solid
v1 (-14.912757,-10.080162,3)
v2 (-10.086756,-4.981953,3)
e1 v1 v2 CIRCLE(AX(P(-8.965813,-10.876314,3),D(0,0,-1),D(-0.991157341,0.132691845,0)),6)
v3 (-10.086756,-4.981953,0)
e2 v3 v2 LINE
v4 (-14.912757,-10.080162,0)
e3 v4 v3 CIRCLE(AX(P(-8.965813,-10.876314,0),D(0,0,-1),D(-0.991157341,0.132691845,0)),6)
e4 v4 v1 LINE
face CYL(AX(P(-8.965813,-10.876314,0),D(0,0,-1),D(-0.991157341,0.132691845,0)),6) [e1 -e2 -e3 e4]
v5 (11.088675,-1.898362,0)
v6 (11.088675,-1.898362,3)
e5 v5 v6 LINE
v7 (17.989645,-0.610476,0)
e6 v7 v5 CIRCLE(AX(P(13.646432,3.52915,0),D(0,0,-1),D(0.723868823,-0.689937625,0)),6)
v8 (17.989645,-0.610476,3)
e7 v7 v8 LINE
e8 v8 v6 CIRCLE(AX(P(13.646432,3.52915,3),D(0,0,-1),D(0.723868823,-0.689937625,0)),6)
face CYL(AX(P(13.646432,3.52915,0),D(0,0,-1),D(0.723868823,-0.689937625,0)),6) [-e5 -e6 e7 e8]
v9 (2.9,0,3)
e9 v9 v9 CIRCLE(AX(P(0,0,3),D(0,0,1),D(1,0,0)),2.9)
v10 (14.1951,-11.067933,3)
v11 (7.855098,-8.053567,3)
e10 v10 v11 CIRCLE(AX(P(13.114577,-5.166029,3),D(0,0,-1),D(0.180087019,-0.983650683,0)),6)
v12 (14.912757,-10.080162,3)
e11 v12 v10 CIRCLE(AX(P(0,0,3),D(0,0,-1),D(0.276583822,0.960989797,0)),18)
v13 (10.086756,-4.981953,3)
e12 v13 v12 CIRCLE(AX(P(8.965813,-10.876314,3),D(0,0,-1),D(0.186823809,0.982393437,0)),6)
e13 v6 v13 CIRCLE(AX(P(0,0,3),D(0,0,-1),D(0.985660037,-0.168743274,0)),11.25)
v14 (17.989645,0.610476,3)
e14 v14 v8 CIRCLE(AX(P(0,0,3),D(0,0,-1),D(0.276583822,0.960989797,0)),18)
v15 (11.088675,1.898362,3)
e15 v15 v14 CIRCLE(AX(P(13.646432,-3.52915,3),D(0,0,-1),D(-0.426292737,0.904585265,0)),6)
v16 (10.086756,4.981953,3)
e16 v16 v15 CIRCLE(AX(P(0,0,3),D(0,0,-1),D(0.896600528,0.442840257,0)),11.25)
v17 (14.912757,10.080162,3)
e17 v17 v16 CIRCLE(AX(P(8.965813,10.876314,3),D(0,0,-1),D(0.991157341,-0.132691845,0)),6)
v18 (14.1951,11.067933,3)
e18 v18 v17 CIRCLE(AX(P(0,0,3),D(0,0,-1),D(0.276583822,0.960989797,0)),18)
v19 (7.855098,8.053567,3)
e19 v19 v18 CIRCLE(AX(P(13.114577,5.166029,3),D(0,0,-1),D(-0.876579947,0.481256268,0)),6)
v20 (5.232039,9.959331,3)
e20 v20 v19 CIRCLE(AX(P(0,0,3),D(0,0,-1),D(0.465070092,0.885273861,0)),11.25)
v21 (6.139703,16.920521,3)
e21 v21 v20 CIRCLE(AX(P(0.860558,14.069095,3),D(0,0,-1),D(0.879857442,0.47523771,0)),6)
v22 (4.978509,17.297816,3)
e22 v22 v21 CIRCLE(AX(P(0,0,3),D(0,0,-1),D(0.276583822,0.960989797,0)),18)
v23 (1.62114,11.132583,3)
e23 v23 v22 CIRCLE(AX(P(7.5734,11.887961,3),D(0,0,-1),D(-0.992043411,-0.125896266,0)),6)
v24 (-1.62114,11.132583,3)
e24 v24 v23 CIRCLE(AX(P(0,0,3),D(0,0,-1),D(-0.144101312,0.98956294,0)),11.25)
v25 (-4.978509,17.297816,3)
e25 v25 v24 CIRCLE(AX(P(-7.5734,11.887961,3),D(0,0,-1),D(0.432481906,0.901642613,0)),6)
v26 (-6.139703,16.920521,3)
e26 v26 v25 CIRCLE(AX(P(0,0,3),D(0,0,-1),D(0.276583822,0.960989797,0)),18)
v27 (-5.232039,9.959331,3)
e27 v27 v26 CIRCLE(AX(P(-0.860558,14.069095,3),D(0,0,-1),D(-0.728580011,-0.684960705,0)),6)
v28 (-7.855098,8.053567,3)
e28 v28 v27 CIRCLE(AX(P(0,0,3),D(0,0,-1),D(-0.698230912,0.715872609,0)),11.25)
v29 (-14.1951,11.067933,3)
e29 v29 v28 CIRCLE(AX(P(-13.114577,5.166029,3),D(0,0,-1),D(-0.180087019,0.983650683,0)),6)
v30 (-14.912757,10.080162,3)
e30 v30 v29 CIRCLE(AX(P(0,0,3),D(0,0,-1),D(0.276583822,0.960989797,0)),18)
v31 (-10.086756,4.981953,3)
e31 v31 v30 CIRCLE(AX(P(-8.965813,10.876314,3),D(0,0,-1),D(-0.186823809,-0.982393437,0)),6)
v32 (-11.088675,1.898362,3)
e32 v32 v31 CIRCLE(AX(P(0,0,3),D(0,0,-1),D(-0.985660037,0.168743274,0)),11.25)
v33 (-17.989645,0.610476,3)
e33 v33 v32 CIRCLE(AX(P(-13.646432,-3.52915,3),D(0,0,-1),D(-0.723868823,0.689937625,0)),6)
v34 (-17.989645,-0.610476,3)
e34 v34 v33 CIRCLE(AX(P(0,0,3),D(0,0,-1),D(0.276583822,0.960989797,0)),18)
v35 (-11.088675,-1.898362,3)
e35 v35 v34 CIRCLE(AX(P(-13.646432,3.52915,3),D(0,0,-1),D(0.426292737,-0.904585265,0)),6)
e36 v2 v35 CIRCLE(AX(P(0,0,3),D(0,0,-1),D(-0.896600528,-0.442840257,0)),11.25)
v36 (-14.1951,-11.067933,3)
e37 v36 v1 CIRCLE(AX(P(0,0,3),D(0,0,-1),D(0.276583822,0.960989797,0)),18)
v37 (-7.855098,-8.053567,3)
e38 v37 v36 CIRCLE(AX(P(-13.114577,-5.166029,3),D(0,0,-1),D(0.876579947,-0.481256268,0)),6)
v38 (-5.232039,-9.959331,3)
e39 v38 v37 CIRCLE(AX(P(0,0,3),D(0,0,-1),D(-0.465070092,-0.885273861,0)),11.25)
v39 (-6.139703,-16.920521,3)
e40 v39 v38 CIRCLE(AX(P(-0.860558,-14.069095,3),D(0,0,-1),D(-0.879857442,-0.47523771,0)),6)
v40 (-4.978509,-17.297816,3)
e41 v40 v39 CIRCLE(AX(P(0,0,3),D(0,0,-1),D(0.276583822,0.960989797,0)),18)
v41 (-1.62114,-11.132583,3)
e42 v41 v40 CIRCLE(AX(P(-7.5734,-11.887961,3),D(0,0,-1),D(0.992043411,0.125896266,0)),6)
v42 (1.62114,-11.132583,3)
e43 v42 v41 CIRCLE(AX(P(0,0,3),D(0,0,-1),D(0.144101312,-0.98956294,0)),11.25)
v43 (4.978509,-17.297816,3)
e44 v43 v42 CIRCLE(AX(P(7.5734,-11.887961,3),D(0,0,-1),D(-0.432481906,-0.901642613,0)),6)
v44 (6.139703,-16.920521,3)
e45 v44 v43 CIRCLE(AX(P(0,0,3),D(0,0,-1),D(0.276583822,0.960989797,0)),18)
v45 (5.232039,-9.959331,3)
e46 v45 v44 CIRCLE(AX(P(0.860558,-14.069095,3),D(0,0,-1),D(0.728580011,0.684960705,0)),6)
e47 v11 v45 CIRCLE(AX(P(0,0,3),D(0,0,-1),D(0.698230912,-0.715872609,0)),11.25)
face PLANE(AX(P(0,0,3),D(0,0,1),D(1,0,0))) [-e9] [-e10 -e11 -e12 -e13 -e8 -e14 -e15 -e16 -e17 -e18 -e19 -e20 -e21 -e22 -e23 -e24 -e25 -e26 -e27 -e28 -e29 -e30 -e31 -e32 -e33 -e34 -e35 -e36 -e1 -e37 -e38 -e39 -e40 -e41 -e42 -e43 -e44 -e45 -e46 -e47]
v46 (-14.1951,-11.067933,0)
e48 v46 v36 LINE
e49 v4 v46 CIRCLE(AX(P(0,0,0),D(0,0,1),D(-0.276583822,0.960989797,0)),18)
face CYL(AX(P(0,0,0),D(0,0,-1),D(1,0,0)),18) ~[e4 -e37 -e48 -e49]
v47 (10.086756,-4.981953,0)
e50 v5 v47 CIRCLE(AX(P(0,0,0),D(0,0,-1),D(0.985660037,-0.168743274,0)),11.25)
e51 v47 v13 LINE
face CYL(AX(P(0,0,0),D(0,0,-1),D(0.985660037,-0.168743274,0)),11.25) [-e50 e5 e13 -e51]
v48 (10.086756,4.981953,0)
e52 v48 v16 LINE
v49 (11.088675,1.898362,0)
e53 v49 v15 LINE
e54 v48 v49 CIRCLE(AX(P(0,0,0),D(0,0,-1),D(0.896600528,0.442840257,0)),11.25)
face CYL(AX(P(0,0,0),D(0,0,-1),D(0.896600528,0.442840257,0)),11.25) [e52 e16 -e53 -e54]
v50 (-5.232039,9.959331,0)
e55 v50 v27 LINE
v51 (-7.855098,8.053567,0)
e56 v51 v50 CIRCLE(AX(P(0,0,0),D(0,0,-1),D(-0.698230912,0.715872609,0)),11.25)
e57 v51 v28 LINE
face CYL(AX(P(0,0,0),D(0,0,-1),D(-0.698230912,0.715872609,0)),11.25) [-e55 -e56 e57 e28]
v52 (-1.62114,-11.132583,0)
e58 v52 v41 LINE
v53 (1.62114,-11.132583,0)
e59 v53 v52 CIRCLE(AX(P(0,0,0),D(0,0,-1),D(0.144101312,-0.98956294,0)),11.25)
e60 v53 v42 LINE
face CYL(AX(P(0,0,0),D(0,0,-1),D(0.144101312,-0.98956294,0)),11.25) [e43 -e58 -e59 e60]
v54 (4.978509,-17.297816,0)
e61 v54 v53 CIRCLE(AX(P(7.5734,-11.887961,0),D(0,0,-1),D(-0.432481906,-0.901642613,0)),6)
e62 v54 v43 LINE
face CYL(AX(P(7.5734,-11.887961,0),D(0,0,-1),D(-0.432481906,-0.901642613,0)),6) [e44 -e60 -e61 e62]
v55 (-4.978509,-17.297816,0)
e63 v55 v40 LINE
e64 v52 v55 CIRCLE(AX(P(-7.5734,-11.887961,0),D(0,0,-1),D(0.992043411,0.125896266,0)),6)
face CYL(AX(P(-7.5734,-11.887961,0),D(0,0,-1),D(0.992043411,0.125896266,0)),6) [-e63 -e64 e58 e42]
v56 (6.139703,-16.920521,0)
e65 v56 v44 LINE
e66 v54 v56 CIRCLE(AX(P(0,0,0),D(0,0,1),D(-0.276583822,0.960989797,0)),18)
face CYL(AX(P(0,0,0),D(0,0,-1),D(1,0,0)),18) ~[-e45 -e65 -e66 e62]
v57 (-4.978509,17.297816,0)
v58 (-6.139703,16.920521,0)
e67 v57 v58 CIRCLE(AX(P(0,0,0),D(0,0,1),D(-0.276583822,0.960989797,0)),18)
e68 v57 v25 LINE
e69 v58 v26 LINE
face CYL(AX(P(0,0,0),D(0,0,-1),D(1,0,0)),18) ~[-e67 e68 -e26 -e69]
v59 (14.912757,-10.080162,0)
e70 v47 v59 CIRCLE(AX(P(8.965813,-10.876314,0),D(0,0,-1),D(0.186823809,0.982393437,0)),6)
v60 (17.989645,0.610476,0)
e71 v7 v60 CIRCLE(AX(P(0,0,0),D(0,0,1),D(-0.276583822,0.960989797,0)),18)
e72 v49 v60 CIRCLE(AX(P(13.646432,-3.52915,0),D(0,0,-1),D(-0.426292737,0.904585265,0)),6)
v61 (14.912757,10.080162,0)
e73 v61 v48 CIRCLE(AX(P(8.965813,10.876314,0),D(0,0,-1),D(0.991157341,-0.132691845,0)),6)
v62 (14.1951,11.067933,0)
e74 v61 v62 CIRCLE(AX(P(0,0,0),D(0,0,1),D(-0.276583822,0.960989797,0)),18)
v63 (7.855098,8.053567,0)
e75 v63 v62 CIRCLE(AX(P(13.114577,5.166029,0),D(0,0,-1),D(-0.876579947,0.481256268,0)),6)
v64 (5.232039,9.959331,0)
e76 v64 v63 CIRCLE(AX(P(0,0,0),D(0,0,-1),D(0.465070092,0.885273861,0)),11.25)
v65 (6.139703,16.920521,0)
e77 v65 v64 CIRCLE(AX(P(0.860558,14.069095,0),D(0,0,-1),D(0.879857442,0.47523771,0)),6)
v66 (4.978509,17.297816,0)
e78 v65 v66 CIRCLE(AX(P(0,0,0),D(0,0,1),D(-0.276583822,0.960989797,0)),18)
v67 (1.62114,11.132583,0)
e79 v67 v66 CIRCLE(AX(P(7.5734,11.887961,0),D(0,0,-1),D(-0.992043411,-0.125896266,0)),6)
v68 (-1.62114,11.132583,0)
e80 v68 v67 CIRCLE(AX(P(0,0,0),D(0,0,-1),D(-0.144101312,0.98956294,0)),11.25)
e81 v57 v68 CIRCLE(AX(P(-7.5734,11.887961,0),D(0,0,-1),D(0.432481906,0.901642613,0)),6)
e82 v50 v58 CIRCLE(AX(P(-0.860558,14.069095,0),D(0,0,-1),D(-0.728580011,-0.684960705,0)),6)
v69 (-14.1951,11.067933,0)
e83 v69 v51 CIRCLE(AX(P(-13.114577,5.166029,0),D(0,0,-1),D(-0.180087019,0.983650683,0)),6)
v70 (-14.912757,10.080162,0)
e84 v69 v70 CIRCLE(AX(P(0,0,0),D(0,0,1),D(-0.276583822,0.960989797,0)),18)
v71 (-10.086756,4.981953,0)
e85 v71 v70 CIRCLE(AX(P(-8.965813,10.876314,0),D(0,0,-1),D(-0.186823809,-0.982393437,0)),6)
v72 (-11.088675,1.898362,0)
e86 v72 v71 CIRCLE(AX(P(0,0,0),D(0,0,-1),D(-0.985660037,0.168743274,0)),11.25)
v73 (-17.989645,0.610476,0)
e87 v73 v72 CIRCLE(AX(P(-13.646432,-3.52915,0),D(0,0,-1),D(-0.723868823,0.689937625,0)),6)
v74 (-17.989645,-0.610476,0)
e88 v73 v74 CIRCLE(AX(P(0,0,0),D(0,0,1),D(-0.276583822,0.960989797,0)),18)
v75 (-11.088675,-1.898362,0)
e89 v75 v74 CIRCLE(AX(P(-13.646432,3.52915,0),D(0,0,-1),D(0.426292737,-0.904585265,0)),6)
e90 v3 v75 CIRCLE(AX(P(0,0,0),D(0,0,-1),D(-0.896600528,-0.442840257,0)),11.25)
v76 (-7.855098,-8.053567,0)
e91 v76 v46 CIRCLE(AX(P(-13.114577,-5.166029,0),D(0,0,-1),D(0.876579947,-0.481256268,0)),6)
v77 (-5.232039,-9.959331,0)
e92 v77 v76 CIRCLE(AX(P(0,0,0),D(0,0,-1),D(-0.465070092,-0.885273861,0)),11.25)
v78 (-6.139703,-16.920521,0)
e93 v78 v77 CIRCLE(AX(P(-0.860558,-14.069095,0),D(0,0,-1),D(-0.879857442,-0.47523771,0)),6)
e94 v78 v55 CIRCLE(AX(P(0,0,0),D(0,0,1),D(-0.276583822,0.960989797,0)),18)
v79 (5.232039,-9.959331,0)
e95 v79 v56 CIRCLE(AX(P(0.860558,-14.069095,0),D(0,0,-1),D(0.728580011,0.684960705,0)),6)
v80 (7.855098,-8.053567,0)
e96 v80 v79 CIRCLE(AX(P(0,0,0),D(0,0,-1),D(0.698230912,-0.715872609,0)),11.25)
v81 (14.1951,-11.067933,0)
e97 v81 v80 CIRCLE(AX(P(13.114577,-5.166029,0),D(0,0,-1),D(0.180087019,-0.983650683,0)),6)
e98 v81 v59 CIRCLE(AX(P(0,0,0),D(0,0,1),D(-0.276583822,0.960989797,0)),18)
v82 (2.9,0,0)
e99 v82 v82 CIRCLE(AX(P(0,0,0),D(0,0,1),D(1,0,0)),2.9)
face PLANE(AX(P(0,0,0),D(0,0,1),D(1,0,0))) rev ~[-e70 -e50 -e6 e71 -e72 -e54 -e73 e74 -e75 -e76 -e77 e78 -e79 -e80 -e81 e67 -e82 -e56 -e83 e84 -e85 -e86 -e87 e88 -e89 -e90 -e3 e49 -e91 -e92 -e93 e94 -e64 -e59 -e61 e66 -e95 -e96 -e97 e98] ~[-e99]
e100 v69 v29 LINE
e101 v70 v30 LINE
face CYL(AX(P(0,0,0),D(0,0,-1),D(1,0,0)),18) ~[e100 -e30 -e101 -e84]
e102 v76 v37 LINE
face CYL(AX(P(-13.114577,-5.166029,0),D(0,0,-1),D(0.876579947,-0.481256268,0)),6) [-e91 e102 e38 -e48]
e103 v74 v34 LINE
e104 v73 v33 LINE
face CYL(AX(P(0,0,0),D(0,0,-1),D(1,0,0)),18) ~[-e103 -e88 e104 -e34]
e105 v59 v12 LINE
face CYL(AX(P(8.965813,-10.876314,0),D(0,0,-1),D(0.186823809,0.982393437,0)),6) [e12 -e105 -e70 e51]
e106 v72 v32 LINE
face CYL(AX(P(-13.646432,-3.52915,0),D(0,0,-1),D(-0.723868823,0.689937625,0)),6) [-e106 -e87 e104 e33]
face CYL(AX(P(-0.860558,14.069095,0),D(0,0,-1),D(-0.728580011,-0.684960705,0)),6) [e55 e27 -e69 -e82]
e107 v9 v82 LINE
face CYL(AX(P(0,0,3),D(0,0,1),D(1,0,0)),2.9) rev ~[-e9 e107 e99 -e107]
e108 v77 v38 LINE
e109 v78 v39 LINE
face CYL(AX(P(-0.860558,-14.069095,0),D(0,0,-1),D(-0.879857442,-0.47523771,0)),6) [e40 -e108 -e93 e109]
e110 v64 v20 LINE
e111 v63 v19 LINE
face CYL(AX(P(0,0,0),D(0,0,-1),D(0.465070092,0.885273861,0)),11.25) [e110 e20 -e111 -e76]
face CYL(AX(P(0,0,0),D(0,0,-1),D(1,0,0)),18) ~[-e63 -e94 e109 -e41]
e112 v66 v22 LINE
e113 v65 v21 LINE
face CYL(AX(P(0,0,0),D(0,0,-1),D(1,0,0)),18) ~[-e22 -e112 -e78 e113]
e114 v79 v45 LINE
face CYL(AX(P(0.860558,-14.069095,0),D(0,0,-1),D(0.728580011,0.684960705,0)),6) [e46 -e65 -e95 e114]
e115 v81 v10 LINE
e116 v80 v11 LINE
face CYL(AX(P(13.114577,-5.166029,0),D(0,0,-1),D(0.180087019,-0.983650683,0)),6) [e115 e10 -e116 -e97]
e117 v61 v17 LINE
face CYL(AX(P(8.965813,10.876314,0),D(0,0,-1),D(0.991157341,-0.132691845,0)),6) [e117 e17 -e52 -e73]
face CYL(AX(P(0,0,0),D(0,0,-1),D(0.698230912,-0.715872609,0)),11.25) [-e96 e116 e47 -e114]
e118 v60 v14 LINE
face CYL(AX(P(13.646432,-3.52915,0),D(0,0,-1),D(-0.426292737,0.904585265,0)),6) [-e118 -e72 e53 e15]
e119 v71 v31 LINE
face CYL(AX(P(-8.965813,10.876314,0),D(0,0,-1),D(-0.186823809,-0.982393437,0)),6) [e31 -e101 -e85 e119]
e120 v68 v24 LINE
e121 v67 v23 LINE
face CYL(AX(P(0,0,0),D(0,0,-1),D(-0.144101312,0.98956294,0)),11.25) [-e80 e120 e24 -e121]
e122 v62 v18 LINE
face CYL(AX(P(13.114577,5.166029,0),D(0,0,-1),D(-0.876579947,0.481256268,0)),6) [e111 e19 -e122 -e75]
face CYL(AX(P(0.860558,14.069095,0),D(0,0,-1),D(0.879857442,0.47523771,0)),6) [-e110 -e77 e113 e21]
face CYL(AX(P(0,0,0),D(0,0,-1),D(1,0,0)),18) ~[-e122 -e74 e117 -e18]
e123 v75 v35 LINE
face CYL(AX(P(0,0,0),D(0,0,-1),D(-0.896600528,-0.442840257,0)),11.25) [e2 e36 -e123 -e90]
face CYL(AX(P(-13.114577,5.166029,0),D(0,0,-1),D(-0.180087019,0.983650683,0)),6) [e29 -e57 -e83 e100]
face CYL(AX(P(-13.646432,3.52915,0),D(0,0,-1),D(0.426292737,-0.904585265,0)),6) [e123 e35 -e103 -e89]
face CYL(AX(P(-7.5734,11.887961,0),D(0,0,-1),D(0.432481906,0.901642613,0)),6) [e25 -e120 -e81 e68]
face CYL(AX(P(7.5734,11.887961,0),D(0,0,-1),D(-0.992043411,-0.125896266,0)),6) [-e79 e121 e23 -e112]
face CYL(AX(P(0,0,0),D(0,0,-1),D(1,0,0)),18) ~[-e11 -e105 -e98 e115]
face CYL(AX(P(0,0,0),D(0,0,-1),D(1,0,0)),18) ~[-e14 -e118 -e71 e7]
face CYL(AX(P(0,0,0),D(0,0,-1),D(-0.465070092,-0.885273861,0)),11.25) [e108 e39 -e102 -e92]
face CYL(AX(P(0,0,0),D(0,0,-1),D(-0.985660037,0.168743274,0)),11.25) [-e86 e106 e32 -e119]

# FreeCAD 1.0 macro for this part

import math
import FreeCAD as App
import Part
import Sketcher

V = App.Vector
Q = App.Units.Quantity

doc = App.newDocument("Part")
body = doc.addObject("PartDesign::Body", "Body")

sketch1 = doc.addObject("Sketcher::SketchObject", "Sketch")
body.addObject(sketch1)
sketch1.AttachmentSupport = (doc.XY_Plane, [""])
sketch1.MapMode = "FlatFace"
sketch1.addGeometry(Part.Circle(V(0, 0, 0), V(0, 0, 1), 18), False)
sketch1.addConstraint([
    Sketcher.Constraint("Coincident", 0, 3, -1, 1),
    Sketcher.Constraint("Diameter", 0, Q("36 mm")),
])
pad1 = doc.addObject("PartDesign::Pad", "Pad")
body.addObject(pad1)
pad1.Profile = sketch1
pad1.Length = 3

sketch2 = doc.addObject("Sketcher::SketchObject", "Sketch001")
body.addObject(sketch2)
sketch2.AttachmentSupport = (doc.XY_Plane, [""])
sketch2.MapMode = "FlatFace"
sketch2.addGeometry([
    Part.ArcOfCircle(Part.Circle(V(-7.6, 11.9, 0), V(0, 0, 1), 6), math.radians(-7), math.radians(64)),
    Part.ArcOfCircle(Part.Circle(V(0, 0, 0), V(0, 0, 1), 11.3), math.radians(81.71), math.radians(98.29)),
    Part.ArcOfCircle(Part.Circle(V(7.6, 11.9, 0), V(0, 0, 1), 6), math.radians(116), math.radians(187)),
    Part.ArcOfCircle(Part.Circle(V(0, 0, 0), V(0, 0, 1), 18), math.radians(74), math.radians(106)),
], False)
sketch2.addConstraint([
    Sketcher.Constraint("Coincident", 0, 1, 1, 2),
    Sketcher.Constraint("Coincident", 1, 1, 2, 2),
    Sketcher.Constraint("Coincident", 2, 1, 3, 1),
    Sketcher.Constraint("Coincident", 3, 2, 0, 2),
    Sketcher.Constraint("Coincident", 1, 3, -1, 1),
    Sketcher.Constraint("Coincident", 3, 3, -1, 1),
    Sketcher.Constraint("Equal", 0, 2),
    Sketcher.Constraint("Symmetric", 0, 3, 2, 3, -2),
    Sketcher.Constraint("Radius", 0, Q("6 mm")),
    Sketcher.Constraint("Radius", 3, Q("18 mm")),
    Sketcher.Constraint("Radius", 1, Q("11.25 mm")),
    Sketcher.Constraint("DistanceX", 0, 3, -1, 1, Q("7.5734 mm")),
    Sketcher.Constraint("DistanceY", -1, 1, 0, 3, Q("11.887961 mm")),
])
pocket1 = doc.addObject("PartDesign::Pocket", "Pocket")
body.addObject(pocket1)
pocket1.Profile = sketch2
pocket1.Length = 3
pocket1.Reversed = True
doc.recompute()

polarpattern = doc.addObject("PartDesign::PolarPattern", "PolarPattern")
body.addObject(polarpattern)
polarpattern.Originals = [pocket1]
polarpattern.Axis = (doc.Z_Axis, [""])
polarpattern.Angle = 360
polarpattern.Occurrences = 10
body.Tip = polarpattern

sketch3 = doc.addObject("Sketcher::SketchObject", "Sketch002")
body.addObject(sketch3)
sketch3.AttachmentSupport = (doc.XY_Plane, [""])
sketch3.MapMode = "FlatFace"
sketch3.AttachmentOffset = App.Placement(V(0, 0, 3), App.Rotation())
sketch3.addGeometry(Part.Circle(V(0, 0, 0), V(0, 0, 1), 2.9), False)
sketch3.addConstraint([
    Sketcher.Constraint("Coincident", 0, 3, -1, 1),
    Sketcher.Constraint("Diameter", 0, Q("5.8 mm")),
])
pocket2 = doc.addObject("PartDesign::Pocket", "Pocket001")
body.addObject(pocket2)
pocket2.Profile = sketch3
pocket2.Type = "ThroughAll"

doc.recompute()
